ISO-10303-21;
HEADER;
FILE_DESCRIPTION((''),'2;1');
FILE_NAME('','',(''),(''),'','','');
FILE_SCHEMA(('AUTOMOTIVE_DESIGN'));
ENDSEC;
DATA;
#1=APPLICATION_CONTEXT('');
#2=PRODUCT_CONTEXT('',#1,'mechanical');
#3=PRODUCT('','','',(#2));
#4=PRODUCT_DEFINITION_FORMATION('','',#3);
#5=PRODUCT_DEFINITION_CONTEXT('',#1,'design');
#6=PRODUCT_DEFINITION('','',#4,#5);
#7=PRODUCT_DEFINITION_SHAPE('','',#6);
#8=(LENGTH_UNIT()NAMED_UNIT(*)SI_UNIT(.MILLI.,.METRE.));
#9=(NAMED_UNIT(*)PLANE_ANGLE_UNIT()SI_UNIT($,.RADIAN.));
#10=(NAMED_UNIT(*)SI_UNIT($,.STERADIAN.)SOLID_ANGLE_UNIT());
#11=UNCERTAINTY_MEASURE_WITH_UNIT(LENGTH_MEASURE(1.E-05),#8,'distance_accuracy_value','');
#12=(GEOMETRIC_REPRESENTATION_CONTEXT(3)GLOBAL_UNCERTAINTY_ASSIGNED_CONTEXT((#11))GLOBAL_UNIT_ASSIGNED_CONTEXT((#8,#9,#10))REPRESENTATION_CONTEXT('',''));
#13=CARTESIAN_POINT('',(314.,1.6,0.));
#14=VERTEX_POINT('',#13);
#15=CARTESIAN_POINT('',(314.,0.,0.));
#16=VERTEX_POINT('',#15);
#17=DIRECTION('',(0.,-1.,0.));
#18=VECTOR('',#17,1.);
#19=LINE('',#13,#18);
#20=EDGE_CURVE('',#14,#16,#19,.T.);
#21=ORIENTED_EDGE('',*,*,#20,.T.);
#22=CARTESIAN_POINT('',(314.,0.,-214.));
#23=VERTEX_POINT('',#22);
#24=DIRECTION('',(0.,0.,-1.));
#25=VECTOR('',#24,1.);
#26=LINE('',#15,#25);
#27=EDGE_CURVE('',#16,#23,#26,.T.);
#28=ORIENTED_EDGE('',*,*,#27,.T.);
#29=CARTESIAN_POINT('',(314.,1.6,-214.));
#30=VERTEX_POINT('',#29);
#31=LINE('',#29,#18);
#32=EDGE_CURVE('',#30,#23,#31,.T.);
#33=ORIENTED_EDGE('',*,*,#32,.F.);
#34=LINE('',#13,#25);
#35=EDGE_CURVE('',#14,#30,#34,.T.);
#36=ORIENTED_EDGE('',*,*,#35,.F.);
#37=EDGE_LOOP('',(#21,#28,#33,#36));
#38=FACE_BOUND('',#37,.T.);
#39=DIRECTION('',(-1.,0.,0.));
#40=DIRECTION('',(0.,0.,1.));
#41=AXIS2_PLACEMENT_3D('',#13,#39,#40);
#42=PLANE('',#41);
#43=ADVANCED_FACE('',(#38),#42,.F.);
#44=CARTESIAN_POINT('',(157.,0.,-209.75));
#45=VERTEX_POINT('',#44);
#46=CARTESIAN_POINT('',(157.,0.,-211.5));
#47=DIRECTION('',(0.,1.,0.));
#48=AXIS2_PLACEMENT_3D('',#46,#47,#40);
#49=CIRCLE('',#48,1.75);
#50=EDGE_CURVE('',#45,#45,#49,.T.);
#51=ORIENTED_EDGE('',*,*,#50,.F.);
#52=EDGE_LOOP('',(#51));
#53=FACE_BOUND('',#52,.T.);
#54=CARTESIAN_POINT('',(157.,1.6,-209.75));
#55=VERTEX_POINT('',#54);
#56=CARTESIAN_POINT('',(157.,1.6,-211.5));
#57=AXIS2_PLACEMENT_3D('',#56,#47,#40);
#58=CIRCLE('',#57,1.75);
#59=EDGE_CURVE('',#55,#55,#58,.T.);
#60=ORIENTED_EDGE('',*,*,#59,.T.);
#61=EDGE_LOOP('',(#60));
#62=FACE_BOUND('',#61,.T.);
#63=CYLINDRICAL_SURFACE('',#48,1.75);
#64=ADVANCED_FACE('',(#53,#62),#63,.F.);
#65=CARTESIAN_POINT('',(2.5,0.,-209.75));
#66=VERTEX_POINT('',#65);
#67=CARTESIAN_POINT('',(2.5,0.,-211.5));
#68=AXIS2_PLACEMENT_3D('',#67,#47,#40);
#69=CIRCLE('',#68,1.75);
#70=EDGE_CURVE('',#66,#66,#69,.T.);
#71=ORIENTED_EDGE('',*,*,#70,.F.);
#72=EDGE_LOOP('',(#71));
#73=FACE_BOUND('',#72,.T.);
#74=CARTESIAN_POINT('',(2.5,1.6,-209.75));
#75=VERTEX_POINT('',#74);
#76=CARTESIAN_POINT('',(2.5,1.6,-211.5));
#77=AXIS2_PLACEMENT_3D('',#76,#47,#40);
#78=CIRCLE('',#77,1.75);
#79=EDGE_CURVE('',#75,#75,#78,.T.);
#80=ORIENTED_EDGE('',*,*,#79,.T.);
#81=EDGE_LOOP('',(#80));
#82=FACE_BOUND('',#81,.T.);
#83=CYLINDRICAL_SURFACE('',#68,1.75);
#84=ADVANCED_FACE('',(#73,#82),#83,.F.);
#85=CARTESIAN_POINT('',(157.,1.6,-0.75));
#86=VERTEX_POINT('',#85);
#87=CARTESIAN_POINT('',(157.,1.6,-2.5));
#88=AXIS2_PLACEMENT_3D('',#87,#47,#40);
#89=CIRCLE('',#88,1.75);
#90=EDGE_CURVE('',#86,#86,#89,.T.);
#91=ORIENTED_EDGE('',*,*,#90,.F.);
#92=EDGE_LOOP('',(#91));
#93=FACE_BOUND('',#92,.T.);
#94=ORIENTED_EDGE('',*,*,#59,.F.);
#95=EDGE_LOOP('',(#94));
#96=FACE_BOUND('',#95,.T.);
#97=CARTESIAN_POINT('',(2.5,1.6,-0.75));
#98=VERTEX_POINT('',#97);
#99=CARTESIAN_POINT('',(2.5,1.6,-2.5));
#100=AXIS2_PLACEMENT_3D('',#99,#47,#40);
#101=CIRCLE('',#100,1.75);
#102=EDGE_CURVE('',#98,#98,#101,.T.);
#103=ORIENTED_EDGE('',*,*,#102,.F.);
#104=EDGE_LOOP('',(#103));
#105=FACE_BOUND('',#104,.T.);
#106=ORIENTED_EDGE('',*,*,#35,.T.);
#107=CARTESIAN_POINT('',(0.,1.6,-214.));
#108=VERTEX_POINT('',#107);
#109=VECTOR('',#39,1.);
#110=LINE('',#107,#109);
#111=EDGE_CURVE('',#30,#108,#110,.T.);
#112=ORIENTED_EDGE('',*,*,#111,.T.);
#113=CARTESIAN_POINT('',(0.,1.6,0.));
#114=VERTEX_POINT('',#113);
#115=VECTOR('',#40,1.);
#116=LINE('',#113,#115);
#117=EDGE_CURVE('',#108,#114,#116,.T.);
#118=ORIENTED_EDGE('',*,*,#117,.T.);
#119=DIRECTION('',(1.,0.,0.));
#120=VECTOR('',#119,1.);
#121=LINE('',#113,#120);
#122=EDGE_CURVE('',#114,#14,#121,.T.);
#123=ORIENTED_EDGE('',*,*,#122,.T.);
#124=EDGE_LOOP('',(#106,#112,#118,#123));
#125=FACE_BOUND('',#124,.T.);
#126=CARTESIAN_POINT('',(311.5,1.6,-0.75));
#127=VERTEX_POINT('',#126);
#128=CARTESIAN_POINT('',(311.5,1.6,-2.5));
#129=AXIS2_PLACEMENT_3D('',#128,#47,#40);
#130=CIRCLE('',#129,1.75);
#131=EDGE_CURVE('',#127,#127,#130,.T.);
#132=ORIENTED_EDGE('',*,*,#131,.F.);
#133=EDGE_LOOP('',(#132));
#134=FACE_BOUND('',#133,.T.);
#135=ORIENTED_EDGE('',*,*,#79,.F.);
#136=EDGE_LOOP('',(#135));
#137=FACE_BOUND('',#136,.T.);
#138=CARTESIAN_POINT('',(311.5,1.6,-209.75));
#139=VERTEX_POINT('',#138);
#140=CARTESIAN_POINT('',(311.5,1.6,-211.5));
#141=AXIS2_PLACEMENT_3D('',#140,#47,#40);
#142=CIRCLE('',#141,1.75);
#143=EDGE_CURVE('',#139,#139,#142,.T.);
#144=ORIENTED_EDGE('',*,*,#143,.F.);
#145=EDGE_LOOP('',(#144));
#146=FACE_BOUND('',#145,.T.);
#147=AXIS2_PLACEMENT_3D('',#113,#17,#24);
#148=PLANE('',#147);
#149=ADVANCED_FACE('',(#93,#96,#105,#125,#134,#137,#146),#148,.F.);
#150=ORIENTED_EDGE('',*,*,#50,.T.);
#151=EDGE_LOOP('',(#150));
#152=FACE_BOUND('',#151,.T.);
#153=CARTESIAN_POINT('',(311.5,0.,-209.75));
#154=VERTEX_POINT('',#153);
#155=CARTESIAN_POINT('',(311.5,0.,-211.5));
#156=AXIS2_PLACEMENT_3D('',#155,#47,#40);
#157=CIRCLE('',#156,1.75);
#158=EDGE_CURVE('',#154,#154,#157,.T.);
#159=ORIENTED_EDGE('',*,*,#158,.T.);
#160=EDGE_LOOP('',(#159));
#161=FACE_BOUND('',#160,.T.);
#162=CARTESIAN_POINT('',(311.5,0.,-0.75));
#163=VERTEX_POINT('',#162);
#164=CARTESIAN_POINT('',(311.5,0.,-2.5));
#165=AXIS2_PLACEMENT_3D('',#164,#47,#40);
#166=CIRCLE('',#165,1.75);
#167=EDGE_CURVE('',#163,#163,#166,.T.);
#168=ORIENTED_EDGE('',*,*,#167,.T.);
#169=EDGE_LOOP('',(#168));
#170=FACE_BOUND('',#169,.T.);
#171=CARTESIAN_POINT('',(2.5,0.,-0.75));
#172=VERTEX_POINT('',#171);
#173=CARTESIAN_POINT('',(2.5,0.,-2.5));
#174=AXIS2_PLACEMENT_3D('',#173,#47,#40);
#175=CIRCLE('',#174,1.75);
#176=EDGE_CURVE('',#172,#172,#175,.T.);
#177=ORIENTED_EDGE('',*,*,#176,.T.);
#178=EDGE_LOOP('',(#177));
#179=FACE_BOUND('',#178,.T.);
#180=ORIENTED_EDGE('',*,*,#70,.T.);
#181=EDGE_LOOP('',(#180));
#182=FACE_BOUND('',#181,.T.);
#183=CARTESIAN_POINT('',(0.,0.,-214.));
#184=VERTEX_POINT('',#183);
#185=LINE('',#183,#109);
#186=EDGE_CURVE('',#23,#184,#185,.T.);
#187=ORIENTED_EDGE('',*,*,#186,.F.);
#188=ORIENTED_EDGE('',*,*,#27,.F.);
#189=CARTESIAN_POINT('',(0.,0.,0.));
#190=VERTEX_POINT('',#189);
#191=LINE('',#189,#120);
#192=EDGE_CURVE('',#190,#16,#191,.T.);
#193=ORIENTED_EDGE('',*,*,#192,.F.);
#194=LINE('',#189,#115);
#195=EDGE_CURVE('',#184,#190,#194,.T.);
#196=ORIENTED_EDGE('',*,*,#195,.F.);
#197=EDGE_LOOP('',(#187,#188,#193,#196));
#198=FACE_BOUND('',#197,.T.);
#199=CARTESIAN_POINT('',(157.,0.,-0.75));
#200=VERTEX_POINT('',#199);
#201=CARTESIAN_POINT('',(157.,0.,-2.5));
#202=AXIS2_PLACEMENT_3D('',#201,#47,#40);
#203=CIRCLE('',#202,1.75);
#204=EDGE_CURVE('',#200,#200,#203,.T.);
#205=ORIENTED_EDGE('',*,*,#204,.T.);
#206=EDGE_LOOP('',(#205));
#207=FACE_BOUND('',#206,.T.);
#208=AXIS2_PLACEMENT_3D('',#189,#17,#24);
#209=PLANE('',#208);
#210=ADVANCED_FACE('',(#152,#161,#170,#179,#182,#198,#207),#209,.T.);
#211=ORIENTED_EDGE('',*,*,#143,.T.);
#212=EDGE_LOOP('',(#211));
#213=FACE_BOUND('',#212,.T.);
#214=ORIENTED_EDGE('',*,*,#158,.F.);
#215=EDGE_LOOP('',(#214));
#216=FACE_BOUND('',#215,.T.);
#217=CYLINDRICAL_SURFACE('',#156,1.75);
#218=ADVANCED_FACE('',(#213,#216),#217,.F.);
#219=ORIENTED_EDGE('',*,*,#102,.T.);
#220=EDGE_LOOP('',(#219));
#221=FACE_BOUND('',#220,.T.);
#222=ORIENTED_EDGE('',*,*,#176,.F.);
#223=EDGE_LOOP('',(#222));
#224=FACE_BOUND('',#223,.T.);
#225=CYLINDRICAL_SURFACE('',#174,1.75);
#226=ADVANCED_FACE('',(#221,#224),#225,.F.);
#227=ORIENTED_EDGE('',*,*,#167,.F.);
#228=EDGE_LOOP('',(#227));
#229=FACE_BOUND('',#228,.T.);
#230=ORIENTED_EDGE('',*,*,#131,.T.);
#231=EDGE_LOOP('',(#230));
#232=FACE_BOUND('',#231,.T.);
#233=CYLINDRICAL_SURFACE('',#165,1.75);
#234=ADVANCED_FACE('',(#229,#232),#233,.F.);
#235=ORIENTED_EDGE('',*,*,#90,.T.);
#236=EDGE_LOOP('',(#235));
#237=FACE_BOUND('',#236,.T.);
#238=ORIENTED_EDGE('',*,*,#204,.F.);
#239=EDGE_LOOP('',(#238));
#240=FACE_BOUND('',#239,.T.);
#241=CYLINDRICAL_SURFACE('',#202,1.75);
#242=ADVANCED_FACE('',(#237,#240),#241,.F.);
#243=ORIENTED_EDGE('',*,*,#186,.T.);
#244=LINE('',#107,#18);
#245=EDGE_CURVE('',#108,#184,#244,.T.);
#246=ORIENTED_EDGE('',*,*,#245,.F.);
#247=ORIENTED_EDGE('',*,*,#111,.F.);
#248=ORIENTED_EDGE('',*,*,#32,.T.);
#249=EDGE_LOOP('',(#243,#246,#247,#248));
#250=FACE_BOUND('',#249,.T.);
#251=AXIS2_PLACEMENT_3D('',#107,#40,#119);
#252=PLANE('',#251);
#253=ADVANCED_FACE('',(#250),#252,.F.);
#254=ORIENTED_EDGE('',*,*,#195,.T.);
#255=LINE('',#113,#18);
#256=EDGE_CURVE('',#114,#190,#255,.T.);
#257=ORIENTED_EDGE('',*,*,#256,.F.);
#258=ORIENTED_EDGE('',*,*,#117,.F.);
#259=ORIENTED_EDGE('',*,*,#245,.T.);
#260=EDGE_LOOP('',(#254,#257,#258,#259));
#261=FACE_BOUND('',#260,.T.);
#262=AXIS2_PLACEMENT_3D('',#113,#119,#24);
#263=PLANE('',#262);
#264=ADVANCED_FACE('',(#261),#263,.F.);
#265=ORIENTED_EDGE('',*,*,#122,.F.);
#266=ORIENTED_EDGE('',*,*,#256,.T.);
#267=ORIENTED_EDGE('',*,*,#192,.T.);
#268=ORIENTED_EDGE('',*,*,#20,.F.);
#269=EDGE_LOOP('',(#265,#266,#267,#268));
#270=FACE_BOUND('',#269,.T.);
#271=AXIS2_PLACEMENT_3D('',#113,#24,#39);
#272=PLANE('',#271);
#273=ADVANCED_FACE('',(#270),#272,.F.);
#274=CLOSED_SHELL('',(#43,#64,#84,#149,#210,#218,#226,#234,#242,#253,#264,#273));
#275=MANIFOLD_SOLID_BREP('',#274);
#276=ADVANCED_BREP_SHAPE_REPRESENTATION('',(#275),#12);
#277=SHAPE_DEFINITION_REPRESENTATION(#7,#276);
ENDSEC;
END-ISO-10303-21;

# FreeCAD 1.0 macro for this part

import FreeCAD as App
import Part
import Sketcher
from FreeCAD import Vector

doc = App.newDocument("Part")
body = doc.addObject("PartDesign::Body", "Body")

sketch1 = body.newObject("Sketcher::SketchObject", "Sketch")
sketch1.AttachmentSupport = (doc.getObject("XZ_Plane"), [""])
sketch1.MapMode = "FlatFace"
sketch1.addGeometry([
    Part.LineSegment(Vector(0, -214, 0), Vector(0, 0, 0)),
    Part.LineSegment(Vector(0, 0, 0), Vector(314, 0, 0)),
    Part.LineSegment(Vector(314, 0, 0), Vector(314, -214, 0)),
    Part.LineSegment(Vector(314, -214, 0), Vector(0, -214, 0)),
], False)
sketch1.addConstraint([
    Sketcher.Constraint("Coincident", 0, 2, 1, 1),
    Sketcher.Constraint("Coincident", 1, 2, 2, 1),
    Sketcher.Constraint("Coincident", 2, 2, 3, 1),
    Sketcher.Constraint("Coincident", 3, 2, 0, 1),
    Sketcher.Constraint("Vertical", 0),
    Sketcher.Constraint("Horizontal", 1),
    Sketcher.Constraint("Vertical", 2),
    Sketcher.Constraint("Horizontal", 3),
    Sketcher.Constraint("Coincident", 0, 2, -1, 1),
    Sketcher.Constraint("DistanceX", 1, 1, 1, 2, 314.0),
    Sketcher.Constraint("DistanceY", 0, 1, 0, 2, 214.0),
])
pad1 = body.newObject("PartDesign::Pad", "Pad")
pad1.Profile = sketch1
pad1.Length = 1.6
pad1.Reversed = True

sketch2 = body.newObject("Sketcher::SketchObject", "Sketch001")
sketch2.AttachmentSupport = (doc.getObject("XZ_Plane"), [""])
sketch2.MapMode = "FlatFace"
sketch2.AttachmentOffset = App.Placement(Vector(0, 0, -1.6), App.Rotation())
sketch2.addGeometry([
    Part.Circle(Vector(2.5, -2.5, 0), Vector(0, 0, 1), 1.75),
    Part.Circle(Vector(311.5, -2.5, 0), Vector(0, 0, 1), 1.75),
    Part.Circle(Vector(2.5, -211.5, 0), Vector(0, 0, 1), 1.75),
    Part.Circle(Vector(311.5, -211.5, 0), Vector(0, 0, 1), 1.75),
    Part.Circle(Vector(157, -2.5, 0), Vector(0, 0, 1), 1.75),
    Part.Circle(Vector(157, -211.5, 0), Vector(0, 0, 1), 1.75),
], False)
sketch2.addConstraint([
    Sketcher.Constraint("Equal", 0, 1),
    Sketcher.Constraint("Equal", 1, 2),
    Sketcher.Constraint("Equal", 2, 3),
    Sketcher.Constraint("Equal", 3, 4),
    Sketcher.Constraint("Equal", 4, 5),
    Sketcher.Constraint("Horizontal", 0, 3, 1, 3),
    Sketcher.Constraint("Horizontal", 2, 3, 3, 3),
    Sketcher.Constraint("Horizontal", 1, 3, 4, 3),
    Sketcher.Constraint("Horizontal", 3, 3, 5, 3),
    Sketcher.Constraint("Vertical", 0, 3, 2, 3),
    Sketcher.Constraint("Vertical", 1, 3, 3, 3),
    Sketcher.Constraint("Vertical", 4, 3, 5, 3),
    Sketcher.Constraint("Diameter", 0, 3.5),
    Sketcher.Constraint("DistanceX", -1, 1, 4, 3, 157.0),
    Sketcher.Constraint("DistanceX", 0, 3, 1, 3, 309.0),
    Sketcher.Constraint("DistanceY", 2, 3, 0, 3, 209.0),
    Sketcher.Constraint("DistanceX", -1, 1, 0, 3, 2.5),
    Sketcher.Constraint("DistanceY", 0, 3, -1, 1, 2.5),
])
pocket1 = body.newObject("PartDesign::Pocket", "Pocket")
pocket1.Profile = sketch2
pocket1.Type = "ThroughAll"
pocket1.Reversed = True

doc.recompute()
